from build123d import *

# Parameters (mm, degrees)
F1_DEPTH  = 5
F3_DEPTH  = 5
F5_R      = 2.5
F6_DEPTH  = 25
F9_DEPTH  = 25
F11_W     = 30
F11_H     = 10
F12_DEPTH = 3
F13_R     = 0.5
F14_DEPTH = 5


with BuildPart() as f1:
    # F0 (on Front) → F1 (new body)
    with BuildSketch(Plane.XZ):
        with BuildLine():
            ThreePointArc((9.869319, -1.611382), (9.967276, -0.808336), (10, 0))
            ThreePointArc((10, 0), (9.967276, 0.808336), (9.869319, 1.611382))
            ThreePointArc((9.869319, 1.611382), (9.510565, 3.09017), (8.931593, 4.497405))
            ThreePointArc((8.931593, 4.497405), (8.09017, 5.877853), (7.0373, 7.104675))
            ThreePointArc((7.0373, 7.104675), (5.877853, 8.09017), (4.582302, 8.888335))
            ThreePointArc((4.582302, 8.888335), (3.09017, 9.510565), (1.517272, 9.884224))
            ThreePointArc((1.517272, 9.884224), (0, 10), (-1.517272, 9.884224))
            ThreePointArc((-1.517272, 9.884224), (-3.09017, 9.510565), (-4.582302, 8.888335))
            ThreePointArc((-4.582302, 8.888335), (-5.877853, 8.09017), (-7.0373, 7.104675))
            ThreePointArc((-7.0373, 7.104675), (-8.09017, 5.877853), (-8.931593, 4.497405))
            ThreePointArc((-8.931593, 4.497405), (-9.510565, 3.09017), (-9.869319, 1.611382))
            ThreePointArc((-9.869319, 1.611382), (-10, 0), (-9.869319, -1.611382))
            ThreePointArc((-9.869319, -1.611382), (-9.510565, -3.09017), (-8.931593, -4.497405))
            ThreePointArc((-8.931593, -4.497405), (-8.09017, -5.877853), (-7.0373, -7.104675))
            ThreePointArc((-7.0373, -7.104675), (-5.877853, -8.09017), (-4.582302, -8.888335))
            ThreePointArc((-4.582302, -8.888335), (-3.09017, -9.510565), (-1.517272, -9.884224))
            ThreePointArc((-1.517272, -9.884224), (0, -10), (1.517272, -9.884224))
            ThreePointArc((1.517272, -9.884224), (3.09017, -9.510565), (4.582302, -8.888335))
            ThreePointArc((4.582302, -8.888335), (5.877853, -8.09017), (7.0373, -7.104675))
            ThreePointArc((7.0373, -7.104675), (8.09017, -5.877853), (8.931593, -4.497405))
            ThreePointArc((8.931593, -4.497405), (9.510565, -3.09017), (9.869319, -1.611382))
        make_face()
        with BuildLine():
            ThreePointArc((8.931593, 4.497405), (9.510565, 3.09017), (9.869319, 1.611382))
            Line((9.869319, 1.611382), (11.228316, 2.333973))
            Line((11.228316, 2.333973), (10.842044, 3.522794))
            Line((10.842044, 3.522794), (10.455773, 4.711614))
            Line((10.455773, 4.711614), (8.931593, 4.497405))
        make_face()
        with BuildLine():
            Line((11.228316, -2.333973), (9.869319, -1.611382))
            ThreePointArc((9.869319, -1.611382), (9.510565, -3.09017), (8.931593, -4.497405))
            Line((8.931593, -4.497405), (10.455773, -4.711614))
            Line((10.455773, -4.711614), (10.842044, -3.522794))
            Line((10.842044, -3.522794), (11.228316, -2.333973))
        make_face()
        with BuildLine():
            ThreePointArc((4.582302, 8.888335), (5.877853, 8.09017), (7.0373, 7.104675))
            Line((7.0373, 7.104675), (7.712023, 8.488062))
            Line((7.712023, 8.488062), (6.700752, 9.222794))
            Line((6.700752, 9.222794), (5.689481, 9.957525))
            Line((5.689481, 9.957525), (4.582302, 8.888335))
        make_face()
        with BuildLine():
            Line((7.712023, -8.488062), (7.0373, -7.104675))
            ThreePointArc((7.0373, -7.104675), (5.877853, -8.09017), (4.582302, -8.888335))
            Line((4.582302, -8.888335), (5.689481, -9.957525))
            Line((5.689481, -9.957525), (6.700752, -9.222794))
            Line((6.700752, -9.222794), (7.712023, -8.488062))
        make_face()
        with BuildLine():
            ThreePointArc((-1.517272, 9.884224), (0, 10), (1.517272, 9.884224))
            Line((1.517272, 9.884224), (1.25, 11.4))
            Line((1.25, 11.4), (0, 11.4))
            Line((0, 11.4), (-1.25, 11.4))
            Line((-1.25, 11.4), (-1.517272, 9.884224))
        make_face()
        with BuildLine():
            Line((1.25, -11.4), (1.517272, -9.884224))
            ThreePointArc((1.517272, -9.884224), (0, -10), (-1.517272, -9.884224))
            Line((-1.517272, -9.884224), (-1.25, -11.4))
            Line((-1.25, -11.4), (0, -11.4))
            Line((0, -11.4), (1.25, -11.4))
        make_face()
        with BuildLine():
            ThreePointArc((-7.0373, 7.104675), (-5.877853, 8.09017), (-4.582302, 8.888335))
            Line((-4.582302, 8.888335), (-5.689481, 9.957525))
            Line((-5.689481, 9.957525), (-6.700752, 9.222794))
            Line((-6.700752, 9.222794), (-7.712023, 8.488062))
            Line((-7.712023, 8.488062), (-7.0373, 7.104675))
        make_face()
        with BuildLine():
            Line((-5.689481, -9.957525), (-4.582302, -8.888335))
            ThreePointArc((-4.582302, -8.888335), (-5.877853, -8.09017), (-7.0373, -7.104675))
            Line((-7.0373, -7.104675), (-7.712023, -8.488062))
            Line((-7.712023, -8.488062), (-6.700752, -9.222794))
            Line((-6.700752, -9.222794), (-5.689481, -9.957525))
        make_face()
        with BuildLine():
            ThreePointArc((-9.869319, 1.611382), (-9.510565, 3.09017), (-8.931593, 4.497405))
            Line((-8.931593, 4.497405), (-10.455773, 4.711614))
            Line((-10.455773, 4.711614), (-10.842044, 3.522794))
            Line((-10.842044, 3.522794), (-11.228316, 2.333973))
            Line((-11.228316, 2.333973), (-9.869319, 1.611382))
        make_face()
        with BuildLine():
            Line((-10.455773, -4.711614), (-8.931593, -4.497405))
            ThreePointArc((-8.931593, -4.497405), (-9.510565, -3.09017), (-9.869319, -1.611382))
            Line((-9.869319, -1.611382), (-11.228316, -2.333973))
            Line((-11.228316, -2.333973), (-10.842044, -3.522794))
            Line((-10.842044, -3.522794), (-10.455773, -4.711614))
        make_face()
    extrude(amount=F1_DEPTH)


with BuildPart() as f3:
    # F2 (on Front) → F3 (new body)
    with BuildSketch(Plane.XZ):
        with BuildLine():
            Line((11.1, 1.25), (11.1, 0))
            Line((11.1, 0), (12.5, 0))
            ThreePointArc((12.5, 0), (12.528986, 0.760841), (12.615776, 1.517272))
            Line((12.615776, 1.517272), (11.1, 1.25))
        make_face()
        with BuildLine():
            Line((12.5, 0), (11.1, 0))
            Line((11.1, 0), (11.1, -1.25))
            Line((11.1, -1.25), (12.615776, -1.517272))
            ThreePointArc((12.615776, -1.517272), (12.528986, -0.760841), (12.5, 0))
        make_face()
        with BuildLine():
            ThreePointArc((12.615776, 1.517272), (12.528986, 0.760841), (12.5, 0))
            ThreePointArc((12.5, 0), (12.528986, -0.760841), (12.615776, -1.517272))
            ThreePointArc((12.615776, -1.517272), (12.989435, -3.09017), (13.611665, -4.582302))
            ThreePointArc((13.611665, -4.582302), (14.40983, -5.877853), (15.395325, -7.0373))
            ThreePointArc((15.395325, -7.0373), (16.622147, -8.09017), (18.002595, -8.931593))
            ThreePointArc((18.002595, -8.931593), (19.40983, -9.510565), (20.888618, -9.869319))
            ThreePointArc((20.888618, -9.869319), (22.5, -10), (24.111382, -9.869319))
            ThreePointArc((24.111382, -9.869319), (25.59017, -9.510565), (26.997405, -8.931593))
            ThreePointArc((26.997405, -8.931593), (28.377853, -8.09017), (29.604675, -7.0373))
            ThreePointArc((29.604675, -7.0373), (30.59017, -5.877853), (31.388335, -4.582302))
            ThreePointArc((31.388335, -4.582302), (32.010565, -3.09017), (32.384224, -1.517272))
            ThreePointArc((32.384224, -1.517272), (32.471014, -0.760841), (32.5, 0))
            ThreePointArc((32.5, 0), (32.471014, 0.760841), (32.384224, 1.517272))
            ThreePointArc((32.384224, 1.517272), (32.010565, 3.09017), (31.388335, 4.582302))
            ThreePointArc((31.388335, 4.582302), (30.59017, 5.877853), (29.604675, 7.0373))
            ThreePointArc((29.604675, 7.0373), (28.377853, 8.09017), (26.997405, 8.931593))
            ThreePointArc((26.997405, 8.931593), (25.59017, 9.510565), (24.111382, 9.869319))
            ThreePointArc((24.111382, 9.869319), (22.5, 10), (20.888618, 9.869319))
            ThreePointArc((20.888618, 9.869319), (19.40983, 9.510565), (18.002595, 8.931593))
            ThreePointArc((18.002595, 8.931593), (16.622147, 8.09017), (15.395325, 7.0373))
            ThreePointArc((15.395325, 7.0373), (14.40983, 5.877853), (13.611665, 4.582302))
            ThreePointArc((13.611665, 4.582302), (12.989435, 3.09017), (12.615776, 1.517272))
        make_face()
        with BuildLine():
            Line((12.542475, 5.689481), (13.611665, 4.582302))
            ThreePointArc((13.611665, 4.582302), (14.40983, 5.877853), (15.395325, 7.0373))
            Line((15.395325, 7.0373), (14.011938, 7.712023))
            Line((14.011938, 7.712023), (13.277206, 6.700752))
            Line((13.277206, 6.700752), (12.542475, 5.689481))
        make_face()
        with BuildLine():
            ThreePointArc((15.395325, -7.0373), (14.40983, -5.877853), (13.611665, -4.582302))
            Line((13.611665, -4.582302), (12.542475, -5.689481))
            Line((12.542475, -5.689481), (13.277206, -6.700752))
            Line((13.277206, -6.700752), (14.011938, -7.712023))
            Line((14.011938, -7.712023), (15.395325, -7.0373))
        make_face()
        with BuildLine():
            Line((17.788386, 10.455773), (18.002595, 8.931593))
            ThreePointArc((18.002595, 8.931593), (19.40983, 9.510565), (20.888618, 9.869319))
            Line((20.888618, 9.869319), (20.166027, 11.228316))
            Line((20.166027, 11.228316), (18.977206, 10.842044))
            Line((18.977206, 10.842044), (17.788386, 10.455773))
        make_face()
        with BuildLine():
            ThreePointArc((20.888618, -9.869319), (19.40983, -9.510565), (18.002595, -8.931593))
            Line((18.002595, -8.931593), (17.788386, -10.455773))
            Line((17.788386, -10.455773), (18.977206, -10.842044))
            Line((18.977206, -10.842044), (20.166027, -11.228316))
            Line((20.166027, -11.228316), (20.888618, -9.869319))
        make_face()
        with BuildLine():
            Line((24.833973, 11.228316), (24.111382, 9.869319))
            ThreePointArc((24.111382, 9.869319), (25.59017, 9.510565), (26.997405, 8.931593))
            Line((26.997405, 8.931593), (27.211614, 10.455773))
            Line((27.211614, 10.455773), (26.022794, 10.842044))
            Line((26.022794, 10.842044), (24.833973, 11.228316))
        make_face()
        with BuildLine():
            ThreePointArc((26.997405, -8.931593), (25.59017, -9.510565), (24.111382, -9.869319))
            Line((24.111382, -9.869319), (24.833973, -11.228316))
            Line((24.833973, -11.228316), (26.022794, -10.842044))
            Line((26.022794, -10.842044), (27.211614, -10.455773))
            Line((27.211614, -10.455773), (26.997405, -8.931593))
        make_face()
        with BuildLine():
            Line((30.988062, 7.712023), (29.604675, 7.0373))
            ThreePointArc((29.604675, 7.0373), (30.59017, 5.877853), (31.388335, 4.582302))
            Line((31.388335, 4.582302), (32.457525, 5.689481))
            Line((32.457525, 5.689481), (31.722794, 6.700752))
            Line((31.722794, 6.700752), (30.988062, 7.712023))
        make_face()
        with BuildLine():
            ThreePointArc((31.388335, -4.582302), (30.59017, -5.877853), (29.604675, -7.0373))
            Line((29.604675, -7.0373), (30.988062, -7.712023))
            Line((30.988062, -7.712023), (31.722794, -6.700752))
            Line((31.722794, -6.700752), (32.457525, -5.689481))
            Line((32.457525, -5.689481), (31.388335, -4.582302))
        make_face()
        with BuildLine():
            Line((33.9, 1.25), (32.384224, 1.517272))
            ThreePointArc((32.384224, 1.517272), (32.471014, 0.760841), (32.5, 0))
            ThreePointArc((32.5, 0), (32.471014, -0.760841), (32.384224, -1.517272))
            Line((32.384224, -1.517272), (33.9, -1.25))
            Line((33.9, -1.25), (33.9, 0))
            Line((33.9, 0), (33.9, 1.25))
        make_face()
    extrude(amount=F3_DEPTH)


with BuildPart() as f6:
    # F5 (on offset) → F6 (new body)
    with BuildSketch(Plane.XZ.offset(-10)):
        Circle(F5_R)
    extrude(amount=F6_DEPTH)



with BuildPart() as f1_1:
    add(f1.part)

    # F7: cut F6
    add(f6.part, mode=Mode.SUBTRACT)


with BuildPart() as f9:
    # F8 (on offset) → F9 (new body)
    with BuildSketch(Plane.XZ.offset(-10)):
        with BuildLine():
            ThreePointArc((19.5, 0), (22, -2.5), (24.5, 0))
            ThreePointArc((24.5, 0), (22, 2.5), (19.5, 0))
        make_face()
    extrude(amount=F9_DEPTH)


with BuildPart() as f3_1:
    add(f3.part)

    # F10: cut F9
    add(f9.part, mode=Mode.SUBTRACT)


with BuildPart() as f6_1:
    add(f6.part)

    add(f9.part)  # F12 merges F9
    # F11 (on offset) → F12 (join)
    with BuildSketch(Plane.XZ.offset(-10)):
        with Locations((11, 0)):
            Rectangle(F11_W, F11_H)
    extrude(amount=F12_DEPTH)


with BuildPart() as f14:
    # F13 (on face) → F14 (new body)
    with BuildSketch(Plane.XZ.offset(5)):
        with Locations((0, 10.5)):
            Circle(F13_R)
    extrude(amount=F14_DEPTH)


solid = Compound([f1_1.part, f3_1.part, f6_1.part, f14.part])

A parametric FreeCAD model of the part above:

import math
import FreeCAD as App
import Part
import Sketcher
Q = App.Units.Quantity


def add_polygon(sketch, points):
    """Adds a closed chain of lines whose ends are joined by coincident constraints."""
    first, n = sketch.GeometryCount, len(points)
    for a, b in zip(points, points[1:] + points[:1]):
        sketch.addGeometry(Part.LineSegment(App.Vector(*a, 0), App.Vector(*b, 0)), False)
    for i in range(n):
        sketch.addConstraint(Sketcher.Constraint("Coincident", first + i, 2, first + (i + 1) % n, 1))

doc = App.newDocument("Part")
body = doc.addObject("PartDesign::Body", "Body")

sketch1 = body.newObject("Sketcher::SketchObject", "Sketch")
sketch1.AttachmentSupport = (doc.getObject("XZ_Plane"), [""])
sketch1.MapMode = "FlatFace"
sketch1.addGeometry([
    Part.ArcOfCircle(Part.Circle(App.Vector(-0.000104, 0.000005, 0), App.Vector(0, 0, 1), 10.000104), math.radians(-9.272902), math.radians(-0.000031)),
    Part.ArcOfCircle(Part.Circle(App.Vector(-0.000104, -0.000005, 0), App.Vector(0, 0, 1), 10.000104), math.radians(0.000031), math.radians(9.272902)),
    Part.LineSegment(App.Vector(9.869319, 1.611382, 0), App.Vector(11.228316, 2.333973, 0)),
    Part.LineSegment(App.Vector(11.228316, 2.333973, 0), App.Vector(10.842044, 3.522794, 0)),
    Part.LineSegment(App.Vector(10.842044, 3.522794, 0), App.Vector(10.455773, 4.711614, 0)),
    Part.LineSegment(App.Vector(10.455773, 4.711614, 0), App.Vector(8.931593, 4.497405, 0)),
    Part.ArcOfCircle(Part.Circle(App.Vector(0.000016, 0.00001, 0), App.Vector(0, 0, 1), 9.999982), math.radians(26.727024), math.radians(45.272989)),
    Part.LineSegment(App.Vector(7.0373, 7.104675, 0), App.Vector(7.712023, 8.488062, 0)),
    Part.LineSegment(App.Vector(7.712023, 8.488062, 0), App.Vector(6.700752, 9.222794, 0)),
    Part.LineSegment(App.Vector(6.700752, 9.222794, 0), App.Vector(5.689481, 9.957525, 0)),
    Part.LineSegment(App.Vector(5.689481, 9.957525, 0), App.Vector(4.582302, 8.888335, 0)),
    Part.ArcOfCircle(Part.Circle(App.Vector(0.000002, 0.00001, 0), App.Vector(0, 0, 1), 9.99999), math.radians(62.727018), math.radians(81.272969)),
    Part.LineSegment(App.Vector(1.517272, 9.884224, 0), App.Vector(1.25, 11.4, 0)),
    Part.LineSegment(App.Vector(1.25, 11.4, 0), App.Vector(-1.25, 11.4, 0)),
    Part.LineSegment(App.Vector(-1.25, 11.4, 0), App.Vector(-1.517272, 9.884224, 0)),
    Part.ArcOfCircle(Part.Circle(App.Vector(-0.000002, 0.00001, 0), App.Vector(0, 0, 1), 9.99999), math.radians(98.727031), math.radians(117.272982)),
    Part.LineSegment(App.Vector(-4.582302, 8.888335, 0), App.Vector(-5.689481, 9.957525, 0)),
    Part.LineSegment(App.Vector(-5.689481, 9.957525, 0), App.Vector(-6.700752, 9.222794, 0)),
    Part.LineSegment(App.Vector(-6.700752, 9.222794, 0), App.Vector(-7.712023, 8.488062, 0)),
    Part.LineSegment(App.Vector(-7.712023, 8.488062, 0), App.Vector(-7.0373, 7.104675, 0)),
    Part.ArcOfCircle(Part.Circle(App.Vector(-0.000016, 0.00001, 0), App.Vector(0, 0, 1), 9.999982), math.radians(134.727011), math.radians(153.272976)),
    Part.LineSegment(App.Vector(-8.931593, 4.497405, 0), App.Vector(-10.455773, 4.711614, 0)),
    Part.LineSegment(App.Vector(-10.455773, 4.711614, 0), App.Vector(-10.842044, 3.522794, 0)),
    Part.LineSegment(App.Vector(-10.842044, 3.522794, 0), App.Vector(-11.228316, 2.333973, 0)),
    Part.LineSegment(App.Vector(-11.228316, 2.333973, 0), App.Vector(-9.869319, 1.611382, 0)),
    Part.ArcOfCircle(Part.Circle(App.Vector(0.000036, 0, 0), App.Vector(0, 0, 1), 10.000036), math.radians(170.727066), math.radians(189.272934)),
    Part.LineSegment(App.Vector(-9.869319, -1.611382, 0), App.Vector(-11.228316, -2.333973, 0)),
    Part.LineSegment(App.Vector(-11.228316, -2.333973, 0), App.Vector(-10.842044, -3.522794, 0)),
    Part.LineSegment(App.Vector(-10.842044, -3.522794, 0), App.Vector(-10.455773, -4.711614, 0)),
    Part.LineSegment(App.Vector(-10.455773, -4.711614, 0), App.Vector(-8.931593, -4.497405, 0)),
    Part.ArcOfCircle(Part.Circle(App.Vector(-0.000016, -0.00001, 0), App.Vector(0, 0, 1), 9.999982), math.radians(-153.272976), math.radians(-134.727011)),
    Part.LineSegment(App.Vector(-7.0373, -7.104675, 0), App.Vector(-7.712023, -8.488062, 0)),
    Part.LineSegment(App.Vector(-7.712023, -8.488062, 0), App.Vector(-6.700752, -9.222794, 0)),
    Part.LineSegment(App.Vector(-6.700752, -9.222794, 0), App.Vector(-5.689481, -9.957525, 0)),
    Part.LineSegment(App.Vector(-5.689481, -9.957525, 0), App.Vector(-4.582302, -8.888335, 0)),
    Part.ArcOfCircle(Part.Circle(App.Vector(-0.000002, -0.00001, 0), App.Vector(0, 0, 1), 9.99999), math.radians(-117.272982), math.radians(-98.727031)),
    Part.LineSegment(App.Vector(-1.517272, -9.884224, 0), App.Vector(-1.25, -11.4, 0)),
    Part.LineSegment(App.Vector(-1.25, -11.4, 0), App.Vector(1.25, -11.4, 0)),
    Part.LineSegment(App.Vector(1.25, -11.4, 0), App.Vector(1.517272, -9.884224, 0)),
    Part.ArcOfCircle(Part.Circle(App.Vector(0.000002, -0.00001, 0), App.Vector(0, 0, 1), 9.99999), math.radians(-81.272969), math.radians(-62.727018)),
    Part.LineSegment(App.Vector(4.582302, -8.888335, 0), App.Vector(5.689481, -9.957525, 0)),
    Part.LineSegment(App.Vector(5.689481, -9.957525, 0), App.Vector(6.700752, -9.222794, 0)),
    Part.LineSegment(App.Vector(6.700752, -9.222794, 0), App.Vector(7.712023, -8.488062, 0)),
    Part.LineSegment(App.Vector(7.712023, -8.488062, 0), App.Vector(7.0373, -7.104675, 0)),
    Part.ArcOfCircle(Part.Circle(App.Vector(0.000016, -0.00001, 0), App.Vector(0, 0, 1), 9.999982), math.radians(-45.272989), math.radians(-26.727024)),
    Part.LineSegment(App.Vector(8.931593, -4.497405, 0), App.Vector(10.455773, -4.711614, 0)),
    Part.LineSegment(App.Vector(10.455773, -4.711614, 0), App.Vector(10.842044, -3.522794, 0)),
    Part.LineSegment(App.Vector(10.842044, -3.522794, 0), App.Vector(11.228316, -2.333973, 0)),
    Part.LineSegment(App.Vector(11.228316, -2.333973, 0), App.Vector(9.869319, -1.611382, 0)),
], False)
sketch1.addConstraint([
    Sketcher.Constraint("Tangent", 0, 2, 1, 1),
    Sketcher.Constraint("Coincident", 1, 2, 2, 1),
    Sketcher.Constraint("Coincident", 2, 2, 3, 1),
    Sketcher.Constraint("Coincident", 3, 2, 4, 1),
    Sketcher.Constraint("Coincident", 4, 2, 5, 1),
    Sketcher.Constraint("Coincident", 5, 2, 6, 1),
    Sketcher.Constraint("Coincident", 6, 2, 7, 1),
    Sketcher.Constraint("Coincident", 7, 2, 8, 1),
    Sketcher.Constraint("Coincident", 8, 2, 9, 1),
    Sketcher.Constraint("Coincident", 9, 2, 10, 1),
    Sketcher.Constraint("Coincident", 10, 2, 11, 1),
    Sketcher.Constraint("Coincident", 11, 2, 12, 1),
    Sketcher.Constraint("Coincident", 12, 2, 13, 1),
    Sketcher.Constraint("Coincident", 13, 2, 14, 1),
    Sketcher.Constraint("Coincident", 14, 2, 15, 1),
    Sketcher.Constraint("Coincident", 15, 2, 16, 1),
    Sketcher.Constraint("Coincident", 16, 2, 17, 1),
    Sketcher.Constraint("Coincident", 17, 2, 18, 1),
    Sketcher.Constraint("Coincident", 18, 2, 19, 1),
    Sketcher.Constraint("Coincident", 19, 2, 20, 1),
    Sketcher.Constraint("Coincident", 20, 2, 21, 1),
    Sketcher.Constraint("Coincident", 21, 2, 22, 1),
    Sketcher.Constraint("Coincident", 22, 2, 23, 1),
    Sketcher.Constraint("Coincident", 23, 2, 24, 1),
    Sketcher.Constraint("Coincident", 24, 2, 25, 1),
    Sketcher.Constraint("Coincident", 25, 2, 26, 1),
    Sketcher.Constraint("Coincident", 26, 2, 27, 1),
    Sketcher.Constraint("Coincident", 27, 2, 28, 1),
    Sketcher.Constraint("Coincident", 28, 2, 29, 1),
    Sketcher.Constraint("Coincident", 29, 2, 30, 1),
    Sketcher.Constraint("Coincident", 30, 2, 31, 1),
    Sketcher.Constraint("Coincident", 31, 2, 32, 1),
    Sketcher.Constraint("Coincident", 32, 2, 33, 1),
    Sketcher.Constraint("Coincident", 33, 2, 34, 1),
    Sketcher.Constraint("Coincident", 34, 2, 35, 1),
    Sketcher.Constraint("Coincident", 35, 2, 36, 1),
    Sketcher.Constraint("Coincident", 36, 2, 37, 1),
    Sketcher.Constraint("Coincident", 37, 2, 38, 1),
    Sketcher.Constraint("Coincident", 38, 2, 39, 1),
    Sketcher.Constraint("Coincident", 39, 2, 40, 1),
    Sketcher.Constraint("Coincident", 40, 2, 41, 1),
    Sketcher.Constraint("Coincident", 41, 2, 42, 1),
    Sketcher.Constraint("Coincident", 42, 2, 43, 1),
    Sketcher.Constraint("Coincident", 43, 2, 44, 1),
    Sketcher.Constraint("Coincident", 44, 2, 45, 1),
    Sketcher.Constraint("Coincident", 45, 2, 46, 1),
    Sketcher.Constraint("Coincident", 46, 2, 47, 1),
    Sketcher.Constraint("Coincident", 47, 2, 48, 1),
    Sketcher.Constraint("Coincident", 48, 2, 0, 1),
    Sketcher.Constraint("Horizontal", 13),
    Sketcher.Constraint("Horizontal", 37),
    Sketcher.Constraint("Coincident", 15, 3, 11, 3),
    Sketcher.Constraint("Coincident", 39, 3, 35, 3),
    Sketcher.Constraint("Equal", 0, 1),
    Sketcher.Constraint("Equal", 11, 15),
    Sketcher.Constraint("Equal", 6, 20),
    Sketcher.Constraint("Equal", 20, 30),
    Sketcher.Constraint("Equal", 15, 35),
    Sketcher.Constraint("Equal", 35, 39),
    Sketcher.Constraint("Equal", 30, 44),
    Sketcher.Constraint("Symmetric", 6, 3, 30, 3, -1, 1),
    Sketcher.Constraint("Symmetric", 11, 3, 35, 3, -1, 1),
    Sketcher.Constraint("Symmetric", 20, 3, 44, 3, -1, 1),
    Sketcher.Constraint("Symmetric", 1, 2, 25, 2, -1, 1),
    Sketcher.Constraint("Symmetric", 2, 2, 26, 2, -1, 1),
    Sketcher.Constraint("Symmetric", 3, 2, 27, 2, -1, 1),
    Sketcher.Constraint("Symmetric", 4, 2, 28, 2, -1, 1),
    Sketcher.Constraint("Symmetric", 7, 2, 31, 2, -1, 1),
    Sketcher.Constraint("Symmetric", 8, 2, 32, 2, -1, 1),
    Sketcher.Constraint("Symmetric", 9, 2, 33, 2, -1, 1),
    Sketcher.Constraint("Symmetric", 12, 2, 36, 2, -1, 1),
    Sketcher.Constraint("Symmetric", 16, 2, 40, 2, -1, 1),
    Sketcher.Constraint("Symmetric", 17, 2, 41, 2, -1, 1),
    Sketcher.Constraint("Symmetric", 18, 2, 42, 2, -1, 1),
    Sketcher.Constraint("Symmetric", 21, 2, 45, 2, -1, 1),
    Sketcher.Constraint("Symmetric", 22, 2, 46, 2, -1, 1),
    Sketcher.Constraint("Symmetric", 23, 2, 47, 2, -1, 1),
    Sketcher.Constraint("Symmetric", 24, 2, 48, 2, -1, 1),
    Sketcher.Constraint("Symmetric", 6, 3, 20, 3, -2),
    Sketcher.Constraint("Symmetric", 11, 2, 14, 2, -2),
    Sketcher.Constraint("Symmetric", 9, 2, 16, 2, -2),
    Sketcher.Constraint("Symmetric", 8, 2, 17, 2, -2),
    Sketcher.Constraint("Symmetric", 7, 2, 18, 2, -2),
    Sketcher.Constraint("Symmetric", 4, 2, 21, 2, -2),
    Sketcher.Constraint("Symmetric", 3, 2, 22, 2, -2),
    Sketcher.Constraint("Symmetric", 2, 2, 23, 2, -2),
    Sketcher.Constraint("Symmetric", 1, 2, 24, 2, -2),
    Sketcher.Constraint("PointOnObject", 0, 2, -1),
    Sketcher.Constraint("Parallel", 3, 4),
    Sketcher.Constraint("Parallel", 8, 9),
    Sketcher.Constraint("Parallel", 5, 29),
    Sketcher.Constraint("Parallel", 7, 31),
    Sketcher.Constraint("Parallel", 10, 34),
    Sketcher.Constraint("Parallel", 12, 36),
    Sketcher.Constraint("Parallel", 14, 38),
    Sketcher.Constraint("Parallel", 16, 40),
    Sketcher.Constraint("Parallel", 19, 43),
    Sketcher.Constraint("Parallel", 21, 45),
    Sketcher.Constraint("Horizontal", 6, 3, 11, 3),
    Sketcher.Constraint("Horizontal", 10, 2, 15, 2),
    Sketcher.Constraint("Horizontal", 6, 2, 19, 2),
    Sketcher.Constraint("Horizontal", 5, 2, 20, 2),
    Sketcher.Constraint("Horizontal", 35, 2, 38, 2),
    Sketcher.Constraint("Vertical", 13, 2, 36, 2),
    Sketcher.Constraint("Equal", 3, 4),
    Sketcher.Constraint("Equal", 2, 5),
    Sketcher.Constraint("Equal", 5, 7),
    Sketcher.Constraint("Equal", 4, 8),
    Sketcher.Constraint("Equal", 8, 9),
    Sketcher.Constraint("Equal", 7, 10),
    Sketcher.Constraint("Equal", 10, 12),
    Sketcher.Constraint("Angle", 2, Q("27.999983 deg")),
    Sketcher.Constraint("Angle", 4, Q("107.999999 deg")),
    Sketcher.Constraint("Angle", 5, Q("-172.00002 deg")),
    Sketcher.Constraint("Angle", 7, Q("63.999997 deg")),
    Sketcher.Constraint("Angle", 9, Q("144.000014 deg")),
    Sketcher.Constraint("Angle", 10, Q("-136.000009 deg")),
    Sketcher.Constraint("Angle", 12, Q("99.999992 deg")),
    Sketcher.Constraint("DistanceX", 13, 2, 13, 1, 2.5),
    Sketcher.Constraint("DistanceX", -1, 1, 0, 2, 10.0),
    Sketcher.Constraint("DistanceY", -1, 1, 12, 2, 11.4),
    Sketcher.Constraint("DistanceY", 3, 2, 8, 2, 5.7),
    Sketcher.Constraint("Distance", 3, 1.250001),
    Sketcher.Constraint("Radius", 6, 9.999982),
    Sketcher.Constraint("Radius", 11, 9.99999),
    Sketcher.Constraint("Radius", 0, 10.000104),
    Sketcher.Constraint("Radius", 25, 10.000036),
    Sketcher.Constraint("DistanceX", 10, 2, 6, 2, 2.454998),
])
pad1 = body.newObject("PartDesign::Pad", "Pad")
pad1.Profile = sketch1
pad1.Length = 5
body2 = doc.addObject("PartDesign::Body", "Body001")

sketch2 = body2.newObject("Sketcher::SketchObject", "Sketch001")
sketch2.AttachmentSupport = (doc.getObject("XZ_Plane001"), [""])
sketch2.MapMode = "FlatFace"
sketch2.addGeometry([
    Part.LineSegment(App.Vector(11.1, 1.25, 0), App.Vector(11.1, -1.25, 0)),
    Part.LineSegment(App.Vector(11.1, -1.25, 0), App.Vector(12.615776, -1.517272, 0)),
    Part.ArcOfCircle(Part.Circle(App.Vector(22.49999, -0.000002, 0), App.Vector(0, 0, 1), 9.99999), math.radians(-171.272969), math.radians(-152.727018)),
    Part.LineSegment(App.Vector(13.611665, -4.582302, 0), App.Vector(12.542475, -5.689481, 0)),
    Part.LineSegment(App.Vector(12.542475, -5.689481, 0), App.Vector(13.277206, -6.700752, 0)),
    Part.LineSegment(App.Vector(13.277206, -6.700752, 0), App.Vector(14.011938, -7.712023, 0)),
    Part.LineSegment(App.Vector(14.011938, -7.712023, 0), App.Vector(15.395325, -7.0373, 0)),
    Part.ArcOfCircle(Part.Circle(App.Vector(22.49999, -0.000016, 0), App.Vector(0, 0, 1), 9.999982), math.radians(-135.272989), math.radians(-116.727024)),
    Part.LineSegment(App.Vector(18.002595, -8.931593, 0), App.Vector(17.788386, -10.455773, 0)),
    Part.LineSegment(App.Vector(17.788386, -10.455773, 0), App.Vector(18.977206, -10.842044, 0)),
    Part.LineSegment(App.Vector(18.977206, -10.842044, 0), App.Vector(20.166027, -11.228316, 0)),
    Part.LineSegment(App.Vector(20.166027, -11.228316, 0), App.Vector(20.888618, -9.869319, 0)),
    Part.ArcOfCircle(Part.Circle(App.Vector(22.5, 0.000036, 0), App.Vector(0, 0, 1), 10.000036), math.radians(-99.272934), math.radians(-80.727066)),
    Part.LineSegment(App.Vector(24.111382, -9.869319, 0), App.Vector(24.833973, -11.228316, 0)),
    Part.LineSegment(App.Vector(24.833973, -11.228316, 0), App.Vector(26.022794, -10.842044, 0)),
    Part.LineSegment(App.Vector(26.022794, -10.842044, 0), App.Vector(27.211614, -10.455773, 0)),
    Part.LineSegment(App.Vector(27.211614, -10.455773, 0), App.Vector(26.997405, -8.931593, 0)),
    Part.ArcOfCircle(Part.Circle(App.Vector(22.50001, -0.000016, 0), App.Vector(0, 0, 1), 9.999982), math.radians(-63.272976), math.radians(-44.727011)),
    Part.LineSegment(App.Vector(29.604675, -7.0373, 0), App.Vector(30.988062, -7.712023, 0)),
    Part.LineSegment(App.Vector(30.988062, -7.712023, 0), App.Vector(31.722794, -6.700752, 0)),
    Part.LineSegment(App.Vector(31.722794, -6.700752, 0), App.Vector(32.457525, -5.689481, 0)),
    Part.LineSegment(App.Vector(32.457525, -5.689481, 0), App.Vector(31.388335, -4.582302, 0)),
    Part.ArcOfCircle(Part.Circle(App.Vector(22.50001, -0.000002, 0), App.Vector(0, 0, 1), 9.99999), math.radians(-27.272982), math.radians(-8.727031)),
    Part.LineSegment(App.Vector(32.384224, -1.517272, 0), App.Vector(33.9, -1.25, 0)),
    Part.LineSegment(App.Vector(33.9, -1.25, 0), App.Vector(33.9, 1.25, 0)),
    Part.LineSegment(App.Vector(33.9, 1.25, 0), App.Vector(32.384224, 1.517272, 0)),
    Part.ArcOfCircle(Part.Circle(App.Vector(22.50001, 0.000002, 0), App.Vector(0, 0, 1), 9.99999), math.radians(8.727031), math.radians(27.272982)),
    Part.LineSegment(App.Vector(31.388335, 4.582302, 0), App.Vector(32.457525, 5.689481, 0)),
    Part.LineSegment(App.Vector(32.457525, 5.689481, 0), App.Vector(31.722794, 6.700752, 0)),
    Part.LineSegment(App.Vector(31.722794, 6.700752, 0), App.Vector(30.988062, 7.712023, 0)),
    Part.LineSegment(App.Vector(30.988062, 7.712023, 0), App.Vector(29.604675, 7.0373, 0)),
    Part.ArcOfCircle(Part.Circle(App.Vector(22.50001, 0.000016, 0), App.Vector(0, 0, 1), 9.999982), math.radians(44.727011), math.radians(63.272976)),
    Part.LineSegment(App.Vector(26.997405, 8.931593, 0), App.Vector(27.211614, 10.455773, 0)),
    Part.LineSegment(App.Vector(27.211614, 10.455773, 0), App.Vector(26.022794, 10.842044, 0)),
    Part.LineSegment(App.Vector(26.022794, 10.842044, 0), App.Vector(24.833973, 11.228316, 0)),
    Part.LineSegment(App.Vector(24.833973, 11.228316, 0), App.Vector(24.111382, 9.869319, 0)),
    Part.ArcOfCircle(Part.Circle(App.Vector(22.5, -0.000036, 0), App.Vector(0, 0, 1), 10.000036), math.radians(80.727066), math.radians(99.272934)),
    Part.LineSegment(App.Vector(20.888618, 9.869319, 0), App.Vector(20.166027, 11.228316, 0)),
    Part.LineSegment(App.Vector(20.166027, 11.228316, 0), App.Vector(18.977206, 10.842044, 0)),
    Part.LineSegment(App.Vector(18.977206, 10.842044, 0), App.Vector(17.788386, 10.455773, 0)),
    Part.LineSegment(App.Vector(17.788386, 10.455773, 0), App.Vector(18.002595, 8.931593, 0)),
    Part.ArcOfCircle(Part.Circle(App.Vector(22.49999, 0.000016, 0), App.Vector(0, 0, 1), 9.999982), math.radians(116.727024), math.radians(135.272989)),
    Part.LineSegment(App.Vector(15.395325, 7.0373, 0), App.Vector(14.011938, 7.712023, 0)),
    Part.LineSegment(App.Vector(14.011938, 7.712023, 0), App.Vector(13.277206, 6.700752, 0)),
    Part.LineSegment(App.Vector(13.277206, 6.700752, 0), App.Vector(12.542475, 5.689481, 0)),
    Part.LineSegment(App.Vector(12.542475, 5.689481, 0), App.Vector(13.611665, 4.582302, 0)),
    Part.ArcOfCircle(Part.Circle(App.Vector(22.49999, 0.000002, 0), App.Vector(0, 0, 1), 9.99999), math.radians(152.727018), math.radians(171.272969)),
    Part.LineSegment(App.Vector(12.615776, 1.517272, 0), App.Vector(11.1, 1.25, 0)),
], False)
sketch2.addConstraint([
    Sketcher.Constraint("Coincident", 0, 2, 1, 1),
    Sketcher.Constraint("Coincident", 1, 2, 2, 1),
    Sketcher.Constraint("Coincident", 2, 2, 3, 1),
    Sketcher.Constraint("Coincident", 3, 2, 4, 1),
    Sketcher.Constraint("Coincident", 4, 2, 5, 1),
    Sketcher.Constraint("Coincident", 5, 2, 6, 1),
    Sketcher.Constraint("Coincident", 6, 2, 7, 1),
    Sketcher.Constraint("Coincident", 7, 2, 8, 1),
    Sketcher.Constraint("Coincident", 8, 2, 9, 1),
    Sketcher.Constraint("Coincident", 9, 2, 10, 1),
    Sketcher.Constraint("Coincident", 10, 2, 11, 1),
    Sketcher.Constraint("Coincident", 11, 2, 12, 1),
    Sketcher.Constraint("Coincident", 12, 2, 13, 1),
    Sketcher.Constraint("Coincident", 13, 2, 14, 1),
    Sketcher.Constraint("Coincident", 14, 2, 15, 1),
    Sketcher.Constraint("Coincident", 15, 2, 16, 1),
    Sketcher.Constraint("Coincident", 16, 2, 17, 1),
    Sketcher.Constraint("Coincident", 17, 2, 18, 1),
    Sketcher.Constraint("Coincident", 18, 2, 19, 1),
    Sketcher.Constraint("Coincident", 19, 2, 20, 1),
    Sketcher.Constraint("Coincident", 20, 2, 21, 1),
    Sketcher.Constraint("Coincident", 21, 2, 22, 1),
    Sketcher.Constraint("Coincident", 22, 2, 23, 1),
    Sketcher.Constraint("Coincident", 23, 2, 24, 1),
    Sketcher.Constraint("Coincident", 24, 2, 25, 1),
    Sketcher.Constraint("Coincident", 25, 2, 26, 1),
    Sketcher.Constraint("Coincident", 26, 2, 27, 1),
    Sketcher.Constraint("Coincident", 27, 2, 28, 1),
    Sketcher.Constraint("Coincident", 28, 2, 29, 1),
    Sketcher.Constraint("Coincident", 29, 2, 30, 1),
    Sketcher.Constraint("Coincident", 30, 2, 31, 1),
    Sketcher.Constraint("Coincident", 31, 2, 32, 1),
    Sketcher.Constraint("Coincident", 32, 2, 33, 1),
    Sketcher.Constraint("Coincident", 33, 2, 34, 1),
    Sketcher.Constraint("Coincident", 34, 2, 35, 1),
    Sketcher.Constraint("Coincident", 35, 2, 36, 1),
    Sketcher.Constraint("Coincident", 36, 2, 37, 1),
    Sketcher.Constraint("Coincident", 37, 2, 38, 1),
    Sketcher.Constraint("Coincident", 38, 2, 39, 1),
    Sketcher.Constraint("Coincident", 39, 2, 40, 1),
    Sketcher.Constraint("Coincident", 40, 2, 41, 1),
    Sketcher.Constraint("Coincident", 41, 2, 42, 1),
    Sketcher.Constraint("Coincident", 42, 2, 43, 1),
    Sketcher.Constraint("Coincident", 43, 2, 44, 1),
    Sketcher.Constraint("Coincident", 44, 2, 45, 1),
    Sketcher.Constraint("Coincident", 45, 2, 46, 1),
    Sketcher.Constraint("Coincident", 46, 2, 47, 1),
    Sketcher.Constraint("Coincident", 47, 2, 0, 1),
    Sketcher.Constraint("Vertical", 0),
    Sketcher.Constraint("Vertical", 24),
    Sketcher.Constraint("Coincident", 26, 3, 22, 3),
    Sketcher.Constraint("Coincident", 46, 3, 2, 3),
    Sketcher.Constraint("Equal", 7, 17),
    Sketcher.Constraint("Equal", 2, 22),
    Sketcher.Constraint("Equal", 22, 26),
    Sketcher.Constraint("Equal", 17, 31),
    Sketcher.Constraint("Equal", 12, 36),
    Sketcher.Constraint("Equal", 31, 41),
    Sketcher.Constraint("Equal", 26, 46),
    Sketcher.Constraint("Symmetric", 17, 3, 31, 3, -1),
    Sketcher.Constraint("Symmetric", 12, 3, 36, 3, -1),
    Sketcher.Constraint("Symmetric", 7, 3, 41, 3, -1),
    Sketcher.Constraint("Symmetric", 22, 2, 25, 2, -1),
    Sketcher.Constraint("Symmetric", 20, 2, 27, 2, -1),
    Sketcher.Constraint("Symmetric", 19, 2, 28, 2, -1),
    Sketcher.Constraint("Symmetric", 18, 2, 29, 2, -1),
    Sketcher.Constraint("Symmetric", 15, 2, 32, 2, -1),
    Sketcher.Constraint("Symmetric", 14, 2, 33, 2, -1),
    Sketcher.Constraint("Symmetric", 13, 2, 34, 2, -1),
    Sketcher.Constraint("Symmetric", 10, 2, 37, 2, -1),
    Sketcher.Constraint("Symmetric", 9, 2, 38, 2, -1),
    Sketcher.Constraint("Symmetric", 8, 2, 39, 2, -1),
    Sketcher.Constraint("Symmetric", 5, 2, 42, 2, -1),
    Sketcher.Constraint("Symmetric", 4, 2, 43, 2, -1),
    Sketcher.Constraint("Symmetric", 3, 2, 44, 2, -1),
    Sketcher.Constraint("Symmetric", 2, 2, 45, 2, -1),
    Sketcher.Constraint("Parallel", 4, 5),
    Sketcher.Constraint("Parallel", 9, 10),
    Sketcher.Constraint("Parallel", 14, 15),
    Sketcher.Constraint("Parallel", 19, 20),
    Sketcher.Constraint("Parallel", 1, 25),
    Sketcher.Constraint("Parallel", 3, 27),
    Sketcher.Constraint("Parallel", 5, 28),
    Sketcher.Constraint("Parallel", 6, 30),
    Sketcher.Constraint("Parallel", 8, 32),
    Sketcher.Constraint("Parallel", 10, 33),
    Sketcher.Constraint("Parallel", 11, 35),
    Sketcher.Constraint("Parallel", 13, 37),
    Sketcher.Constraint("Parallel", 16, 40),
    Sketcher.Constraint("Parallel", 18, 42),
    Sketcher.Constraint("Parallel", 21, 45),
    Sketcher.Constraint("Parallel", 23, 47),
    Sketcher.Constraint("Horizontal", 7, 3, 17, 3),
    Sketcher.Constraint("Horizontal", 11, 2, 12, 2),
    Sketcher.Constraint("Horizontal", 10, 2, 13, 2),
    Sketcher.Constraint("Horizontal", 9, 2, 14, 2),
    Sketcher.Constraint("Horizontal", 8, 2, 15, 2),
    Sketcher.Constraint("Horizontal", 7, 2, 16, 2),
    Sketcher.Constraint("Horizontal", 6, 2, 17, 2),
    Sketcher.Constraint("Horizontal", 5, 2, 18, 2),
    Sketcher.Constraint("Horizontal", 4, 2, 19, 2),
    Sketcher.Constraint("Horizontal", 3, 2, 20, 2),
    Sketcher.Constraint("Horizontal", 2, 2, 21, 2),
    Sketcher.Constraint("Horizontal", 1, 2, 22, 2),
    Sketcher.Constraint("Horizontal", 0, 2, 23, 2),
    Sketcher.Constraint("Horizontal", 35, 2, 36, 2),
    Sketcher.Constraint("Horizontal", 31, 2, 40, 2),
    Sketcher.Constraint("Horizontal", 30, 2, 41, 2),
    Sketcher.Constraint("Horizontal", 25, 2, 46, 2),
    Sketcher.Constraint("Horizontal", 24, 2, 47, 2),
    Sketcher.Constraint("Vertical", 2, 3, 7, 3),
    Sketcher.Constraint("Equal", 1, 3),
    Sketcher.Constraint("Equal", 4, 5),
    Sketcher.Constraint("Equal", 3, 6),
    Sketcher.Constraint("Equal", 6, 8),
    Sketcher.Constraint("Equal", 5, 9),
    Sketcher.Constraint("Equal", 9, 10),
    Sketcher.Constraint("Equal", 8, 11),
    Sketcher.Constraint("Angle", 1, Q("-9.999992 deg")),
    Sketcher.Constraint("Angle", 3, Q("-133.999991 deg")),
    Sketcher.Constraint("Angle", 4, Q("-54.000014 deg")),
    Sketcher.Constraint("Angle", 6, Q("26.000003 deg")),
    Sketcher.Constraint("Angle", 8, Q("-97.99998 deg")),
    Sketcher.Constraint("Angle", 9, Q("-17.999999 deg")),
    Sketcher.Constraint("Angle", 11, Q("62.000017 deg")),
    Sketcher.Constraint("DistanceY", 0, 2, 0, 1, 2.5),
    Sketcher.Constraint("DistanceX", -1, 1, 12, 3, 22.5),
    Sketcher.Constraint("DistanceX", -1, 1, 0, 2, 11.1),
    Sketcher.Constraint("DistanceX", 4, 2, 9, 2, 5.7),
    Sketcher.Constraint("Distance", 4, 1.249999),
    Sketcher.Constraint("Radius", 2, 9.99999),
    Sketcher.Constraint("Radius", 7, 9.999982),
    Sketcher.Constraint("Radius", 12, 10.000036),
    Sketcher.Constraint("DistanceY", 17, 2, 21, 2, 2.454998),
    Sketcher.Constraint("DistanceY", 6, 2, -1, 1, 7.0373),
])
pad2 = body2.newObject("PartDesign::Pad", "Pad001")
pad2.Profile = sketch2
pad2.Length = 5
body3 = doc.addObject("PartDesign::Body", "Body002")

sketch3 = body3.newObject("Sketcher::SketchObject", "Sketch002")
sketch3.AttachmentSupport = (doc.getObject("XZ_Plane002"), [""])
sketch3.MapMode = "FlatFace"
sketch3.AttachmentOffset = App.Placement(App.Vector(0, 0, -10), App.Rotation())
sketch3.addGeometry(Part.Circle(App.Vector(0, 0, 0), App.Vector(0, 0, 1), 2.5), False)
sketch3.addConstraint([
    Sketcher.Constraint("Coincident", 0, 3, -1, 1),
    Sketcher.Constraint("Diameter", 0, 5.0),
])
pad3 = body3.newObject("PartDesign::Pad", "Pad002")
pad3.Profile = sketch3
pad3.Length = 25
doc.recompute()

body4 = doc.addObject("PartDesign::Body", "Body003")
body4.BaseFeature = body3
boolean = body.newObject("PartDesign::Boolean", "Boolean")
boolean.Type = "Cut"
boolean.addObjects([body4])
doc.recompute()
body5 = doc.addObject("PartDesign::Body", "Body004")

sketch4 = body5.newObject("Sketcher::SketchObject", "Sketch003")
sketch4.AttachmentSupport = (doc.getObject("XZ_Plane004"), [""])
sketch4.MapMode = "FlatFace"
sketch4.AttachmentOffset = App.Placement(App.Vector(0, 0, -10), App.Rotation())
sketch4.addGeometry(Part.Circle(App.Vector(22, 0, 0), App.Vector(0, 0, 1), 2.5), False)
sketch4.addConstraint([
    Sketcher.Constraint("PointOnObject", 0, 3, -1),
    Sketcher.Constraint("Diameter", 0, 5.0),
    Sketcher.Constraint("DistanceX", -1, 1, 0, 3, 22.0),
])
pad4 = body5.newObject("PartDesign::Pad", "Pad003")
pad4.Profile = sketch4
pad4.Length = 25
doc.recompute()

body6 = doc.addObject("PartDesign::Body", "Body005")
body6.BaseFeature = body5
boolean2 = body2.newObject("PartDesign::Boolean", "Boolean001")
boolean2.Type = "Cut"
boolean2.addObjects([body6])
doc.recompute()
body3.AllowCompound = True
doc.recompute()

boolean3 = body3.newObject("PartDesign::Boolean", "Boolean002")
boolean3.Type = "Fuse"
boolean3.addObjects([body5])

sketch5 = body3.newObject("Sketcher::SketchObject", "Sketch004")
sketch5.AttachmentSupport = (doc.getObject("XZ_Plane002"), [""])
sketch5.MapMode = "FlatFace"
sketch5.AttachmentOffset = App.Placement(App.Vector(0, 0, -10), App.Rotation())
add_polygon(sketch5, [(-4, 5), (-4, -5), (26, -5), (26, 5)])
sketch5.addConstraint([
    Sketcher.Constraint("Vertical", 0),
    Sketcher.Constraint("Horizontal", 1),
    Sketcher.Constraint("Vertical", 2),
    Sketcher.Constraint("Horizontal", 3),
    Sketcher.Constraint("DistanceX", 1, 1, 1, 2, 30.0),
    Sketcher.Constraint("DistanceY", 0, 2, 0, 1, 10.0),
    Sketcher.Constraint("DistanceX", 0, 2, -1, 1, 4.0),
    Sketcher.Constraint("DistanceY", 0, 2, -1, 1, 5.0),
])
pad5 = body3.newObject("PartDesign::Pad", "Pad004")
pad5.Profile = sketch5
pad5.Length = 3
body7 = doc.addObject("PartDesign::Body", "Body006")

sketch6 = body7.newObject("Sketcher::SketchObject", "Sketch005")
sketch6.AttachmentSupport = (doc.getObject("XZ_Plane006"), [""])
sketch6.MapMode = "FlatFace"
sketch6.AttachmentOffset = App.Placement(App.Vector(0, 0, 5), App.Rotation())
sketch6.addGeometry(Part.Circle(App.Vector(0, 10.5, 0), App.Vector(0, 0, 1), 0.5), False)
sketch6.addConstraint([
    Sketcher.Constraint("PointOnObject", 0, 3, -2),
    Sketcher.Constraint("Diameter", 0, 1.0),
    Sketcher.Constraint("DistanceY", -1, 1, 0, 3, 10.5),
])
pad6 = body7.newObject("PartDesign::Pad", "Pad005")
pad6.Profile = sketch6
pad6.Length = 5

doc.recompute()
